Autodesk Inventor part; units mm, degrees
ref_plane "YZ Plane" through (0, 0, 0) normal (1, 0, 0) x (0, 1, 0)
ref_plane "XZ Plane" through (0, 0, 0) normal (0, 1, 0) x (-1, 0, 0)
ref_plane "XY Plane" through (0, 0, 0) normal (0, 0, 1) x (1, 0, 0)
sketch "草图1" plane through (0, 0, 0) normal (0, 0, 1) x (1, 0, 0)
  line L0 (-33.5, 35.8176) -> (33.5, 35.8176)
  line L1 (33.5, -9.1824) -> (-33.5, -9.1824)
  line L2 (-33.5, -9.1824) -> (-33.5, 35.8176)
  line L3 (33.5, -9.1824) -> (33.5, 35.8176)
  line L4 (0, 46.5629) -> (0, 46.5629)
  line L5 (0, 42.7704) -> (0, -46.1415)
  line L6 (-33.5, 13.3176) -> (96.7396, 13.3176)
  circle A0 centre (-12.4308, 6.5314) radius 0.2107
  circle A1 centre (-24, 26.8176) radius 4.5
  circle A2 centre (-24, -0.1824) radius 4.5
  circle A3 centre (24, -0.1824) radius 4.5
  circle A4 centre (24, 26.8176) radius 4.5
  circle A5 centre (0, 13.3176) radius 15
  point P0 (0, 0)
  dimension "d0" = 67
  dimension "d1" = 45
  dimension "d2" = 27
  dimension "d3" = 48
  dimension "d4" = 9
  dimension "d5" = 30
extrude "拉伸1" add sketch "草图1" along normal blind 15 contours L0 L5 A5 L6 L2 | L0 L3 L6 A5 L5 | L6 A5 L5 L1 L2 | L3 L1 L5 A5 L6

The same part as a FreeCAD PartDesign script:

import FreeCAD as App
import Part
import Sketcher

V = App.Vector
Q = App.Units.Quantity


def add_polygon(sketch, points):
    """Adds a closed chain of lines whose ends are joined by coincident constraints."""
    first, n = sketch.GeometryCount, len(points)
    for a, b in zip(points, points[1:] + points[:1]):
        sketch.addGeometry(Part.LineSegment(App.Vector(*a, 0), App.Vector(*b, 0)), False)
    for i in range(n):
        sketch.addConstraint(Sketcher.Constraint("Coincident", first + i, 2, first + (i + 1) % n, 1))

doc = App.newDocument("Part")
body = doc.addObject("PartDesign::Body", "Body")

# Sketch on XY plane
sketch1 = doc.addObject("Sketcher::SketchObject", "Sketch")
body.addObject(sketch1)
sketch1.AttachmentSupport = (doc.XY_Plane, [""])
sketch1.MapMode = "FlatFace"
add_polygon(sketch1, [(-33.5, 35.8176), (-33.5, -9.1824), (33.5, -9.1824), (33.5, 35.8176)])  # lines 0-3
sketch1.addGeometry(Part.Circle(V(0, 13.3176, 0), V(0, 0, 1), 15), False)  # 4
sketch1.addGeometry(Part.Circle(V(-24, 26.8176, 0), V(0, 0, 1), 4.5), False)  # 5
sketch1.addGeometry(Part.Circle(V(24, 26.8176, 0), V(0, 0, 1), 4.5), False)  # 6
sketch1.addGeometry(Part.Circle(V(-24, -0.1824, 0), V(0, 0, 1), 4.5), False)  # 7
sketch1.addGeometry(Part.Circle(V(24, -0.1824, 0), V(0, 0, 1), 4.5), False)  # 8
sketch1.addConstraint([
    Sketcher.Constraint("Vertical", 0),
    Sketcher.Constraint("Horizontal", 1),
    Sketcher.Constraint("Vertical", 2),
    Sketcher.Constraint("Horizontal", 3),
    Sketcher.Constraint("Equal", 5, 6),
    Sketcher.Constraint("Equal", 6, 7),
    Sketcher.Constraint("Equal", 7, 8),
    Sketcher.Constraint("Symmetric", 5, 3, 6, 3, -2),
    Sketcher.Constraint("Symmetric", 7, 3, 8, 3, -2),
    Sketcher.Constraint("PointOnObject", 4, 3, -2),
    Sketcher.Constraint("Vertical", 5, 3, 7, 3),
    Sketcher.Constraint("Diameter", 4, Q("30 mm")),
    Sketcher.Constraint("Diameter", 5, Q("9 mm")),
    Sketcher.Constraint("DistanceX", 1, 1, 1, 2, Q("67 mm")),
    Sketcher.Constraint("DistanceY", 0, 2, 0, 1, Q("45 mm")),
    Sketcher.Constraint("DistanceX", 5, 3, 6, 3, Q("48 mm")),
    Sketcher.Constraint("DistanceY", 7, 3, 5, 3, Q("27 mm")),
    Sketcher.Constraint("DistanceY", 0, 2, 7, 3, Q("9 mm")),
    Sketcher.Constraint("DistanceX", 0, 2, -1, 1, Q("33.5 mm")),
    Sketcher.Constraint("DistanceY", 4, 3, 5, 3, Q("13.5 mm")),
    Sketcher.Constraint("DistanceY", -1, 1, 4, 3, Q("13.3176 mm")),
])
pad1 = doc.addObject("PartDesign::Pad", "Pad")
body.addObject(pad1)
pad1.Profile = sketch1
pad1.Length = 15

doc.recompute()
